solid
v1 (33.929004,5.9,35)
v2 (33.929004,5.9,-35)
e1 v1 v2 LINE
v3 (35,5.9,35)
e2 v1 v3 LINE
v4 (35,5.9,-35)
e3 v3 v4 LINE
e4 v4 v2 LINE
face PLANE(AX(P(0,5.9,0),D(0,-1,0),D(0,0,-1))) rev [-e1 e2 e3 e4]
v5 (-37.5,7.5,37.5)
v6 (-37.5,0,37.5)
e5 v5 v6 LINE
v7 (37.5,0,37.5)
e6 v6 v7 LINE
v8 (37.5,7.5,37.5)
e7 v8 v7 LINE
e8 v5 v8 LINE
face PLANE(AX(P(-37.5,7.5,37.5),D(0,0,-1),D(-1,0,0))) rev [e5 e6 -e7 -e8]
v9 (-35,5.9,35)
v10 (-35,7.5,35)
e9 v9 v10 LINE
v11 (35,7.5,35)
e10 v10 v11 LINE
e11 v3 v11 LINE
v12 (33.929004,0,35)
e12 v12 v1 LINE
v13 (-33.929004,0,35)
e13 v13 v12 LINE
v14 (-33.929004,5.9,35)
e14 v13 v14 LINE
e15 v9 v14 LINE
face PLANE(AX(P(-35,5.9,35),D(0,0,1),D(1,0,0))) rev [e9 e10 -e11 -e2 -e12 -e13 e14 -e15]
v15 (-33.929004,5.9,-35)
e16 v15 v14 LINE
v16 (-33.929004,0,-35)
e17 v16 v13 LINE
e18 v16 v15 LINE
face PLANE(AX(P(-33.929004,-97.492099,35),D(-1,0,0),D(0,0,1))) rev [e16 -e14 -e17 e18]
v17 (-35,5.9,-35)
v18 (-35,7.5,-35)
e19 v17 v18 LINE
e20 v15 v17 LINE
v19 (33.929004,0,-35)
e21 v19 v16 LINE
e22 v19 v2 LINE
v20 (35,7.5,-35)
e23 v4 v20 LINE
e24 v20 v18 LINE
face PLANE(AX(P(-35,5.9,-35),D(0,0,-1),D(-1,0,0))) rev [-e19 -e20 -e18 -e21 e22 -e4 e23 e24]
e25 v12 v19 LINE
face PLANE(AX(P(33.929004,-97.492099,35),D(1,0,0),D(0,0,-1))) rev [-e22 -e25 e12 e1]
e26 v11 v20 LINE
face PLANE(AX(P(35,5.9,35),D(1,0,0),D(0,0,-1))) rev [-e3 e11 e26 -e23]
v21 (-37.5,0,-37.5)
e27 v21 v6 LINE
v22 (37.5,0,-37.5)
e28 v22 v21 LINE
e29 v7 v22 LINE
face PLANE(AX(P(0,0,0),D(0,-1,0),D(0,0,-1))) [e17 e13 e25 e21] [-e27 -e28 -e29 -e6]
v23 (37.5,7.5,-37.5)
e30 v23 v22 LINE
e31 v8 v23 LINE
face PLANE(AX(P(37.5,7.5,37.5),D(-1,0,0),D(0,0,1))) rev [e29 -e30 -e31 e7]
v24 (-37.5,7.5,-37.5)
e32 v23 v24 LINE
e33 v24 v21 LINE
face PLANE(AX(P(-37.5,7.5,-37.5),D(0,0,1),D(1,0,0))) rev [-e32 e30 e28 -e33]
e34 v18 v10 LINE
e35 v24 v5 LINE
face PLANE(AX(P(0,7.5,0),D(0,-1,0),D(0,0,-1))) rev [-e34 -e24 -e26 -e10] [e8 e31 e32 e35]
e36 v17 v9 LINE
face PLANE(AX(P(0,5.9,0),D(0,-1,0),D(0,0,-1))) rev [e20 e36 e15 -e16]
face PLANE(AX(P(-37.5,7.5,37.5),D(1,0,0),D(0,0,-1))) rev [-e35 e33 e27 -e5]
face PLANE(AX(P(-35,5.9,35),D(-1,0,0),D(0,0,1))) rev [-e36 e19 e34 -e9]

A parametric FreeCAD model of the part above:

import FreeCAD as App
import Part
import Sketcher


def add_polygon(sketch, points):
    """Adds a closed chain of lines whose ends are joined by coincident constraints."""
    first, n = sketch.GeometryCount, len(points)
    for a, b in zip(points, points[1:] + points[:1]):
        sketch.addGeometry(Part.LineSegment(App.Vector(*a, 0), App.Vector(*b, 0)), False)
    for i in range(n):
        sketch.addConstraint(Sketcher.Constraint("Coincident", first + i, 2, first + (i + 1) % n, 1))

doc = App.newDocument("Part")
params = doc.addObject("Spreadsheet::Sheet", "Params")
for row, (alias, value) in enumerate([
    ("sketch1_width", "75 mm"),
    ("pad1_length", "7.5 mm"),
    ("sketch2_width", "70 mm"),
    ("pocket1_length", "1.6 mm"),
    ("sketch3_height", "70 mm"),
    ("pocket2_length", "5.9 mm"),
], start=1):
    params.set(f"A{row}", alias)
    params.set(f"B{row}", "=" + value)
    params.setAlias(f"B{row}", alias)

body = doc.addObject("PartDesign::Body", "Body")

# Sketch on XZ plane
sketch1 = doc.addObject("Sketcher::SketchObject", "Sketch")
body.addObject(sketch1)
sketch1.AttachmentSupport = (doc.XZ_Plane, [""])
sketch1.MapMode = "FlatFace"
add_polygon(sketch1, [(-38, -38), (-38, 38), (38, 38), (38, -38)])  # lines 0-3
sketch1.addConstraint([
    Sketcher.Constraint("Vertical", 0),
    Sketcher.Constraint("Horizontal", 1),
    Sketcher.Constraint("Vertical", 2),
    Sketcher.Constraint("Horizontal", 3),
    Sketcher.Constraint("Symmetric", 0, 2, 2, 2, -1, 1),
    Sketcher.Constraint("Equal", 3, 0),
    Sketcher.Constraint("DistanceX", 1, 1, 1, 2, 75.0),
])
sketch1.setExpression("Constraints[10]", "Params.sketch1_width")
pad1 = doc.addObject("PartDesign::Pad", "Pad")
body.addObject(pad1)
pad1.Profile = sketch1
pad1.setExpression("Length", "Params.pad1_length")
pad1.Reversed = True

# Sketch on XZ plane
sketch2 = doc.addObject("Sketcher::SketchObject", "Sketch001")
body.addObject(sketch2)
sketch2.AttachmentSupport = (doc.XZ_Plane, [""])
sketch2.MapMode = "FlatFace"
sketch2.AttachmentOffset = App.Placement(App.Vector(0, 0, -7.5), App.Rotation())
add_polygon(sketch2, [(-35, -35), (-35, 35), (35, 35), (35, -35)])  # lines 0-3
sketch2.addConstraint([
    Sketcher.Constraint("Vertical", 0),
    Sketcher.Constraint("Horizontal", 1),
    Sketcher.Constraint("Vertical", 2),
    Sketcher.Constraint("Horizontal", 3),
    Sketcher.Constraint("Symmetric", 0, 2, 2, 2, -1, 1),
    Sketcher.Constraint("Equal", 3, 0),
    Sketcher.Constraint("DistanceX", 1, 1, 1, 2, 70.0),
])
sketch2.setExpression("Constraints[10]", "Params.sketch2_width")
pocket1 = doc.addObject("PartDesign::Pocket", "Pocket")
body.addObject(pocket1)
pocket1.Profile = sketch2
pocket1.setExpression("Length", "Params.pocket1_length")
pocket1.Reversed = True

# Sketch on XZ plane
sketch3 = doc.addObject("Sketcher::SketchObject", "Sketch002")
body.addObject(sketch3)
sketch3.AttachmentSupport = (doc.XZ_Plane, [""])
sketch3.MapMode = "FlatFace"
sketch3.AttachmentOffset = App.Placement(App.Vector(0, 0, -5.9), App.Rotation())
add_polygon(sketch3, [(-34, -35), (-34, 35), (34, 35), (34, -35)])  # lines 0-3
sketch3.addConstraint([
    Sketcher.Constraint("Vertical", 0),
    Sketcher.Constraint("Horizontal", 1),
    Sketcher.Constraint("Vertical", 2),
    Sketcher.Constraint("Horizontal", 3),
    Sketcher.Constraint("Symmetric", 0, 2, 2, 2, -1, 1),
    Sketcher.Constraint("DistanceY", 0, 1, 0, 2, 70.0),
    Sketcher.Constraint("DistanceX", 1, 1, 1, 2, 67.858008),
])
sketch3.setExpression("Constraints[9]", "Params.sketch3_height")
pocket2 = doc.addObject("PartDesign::Pocket", "Pocket001")
body.addObject(pocket2)
pocket2.Profile = sketch3
pocket2.setExpression("Length", "Params.pocket2_length")
pocket2.Reversed = True

doc.recompute()
